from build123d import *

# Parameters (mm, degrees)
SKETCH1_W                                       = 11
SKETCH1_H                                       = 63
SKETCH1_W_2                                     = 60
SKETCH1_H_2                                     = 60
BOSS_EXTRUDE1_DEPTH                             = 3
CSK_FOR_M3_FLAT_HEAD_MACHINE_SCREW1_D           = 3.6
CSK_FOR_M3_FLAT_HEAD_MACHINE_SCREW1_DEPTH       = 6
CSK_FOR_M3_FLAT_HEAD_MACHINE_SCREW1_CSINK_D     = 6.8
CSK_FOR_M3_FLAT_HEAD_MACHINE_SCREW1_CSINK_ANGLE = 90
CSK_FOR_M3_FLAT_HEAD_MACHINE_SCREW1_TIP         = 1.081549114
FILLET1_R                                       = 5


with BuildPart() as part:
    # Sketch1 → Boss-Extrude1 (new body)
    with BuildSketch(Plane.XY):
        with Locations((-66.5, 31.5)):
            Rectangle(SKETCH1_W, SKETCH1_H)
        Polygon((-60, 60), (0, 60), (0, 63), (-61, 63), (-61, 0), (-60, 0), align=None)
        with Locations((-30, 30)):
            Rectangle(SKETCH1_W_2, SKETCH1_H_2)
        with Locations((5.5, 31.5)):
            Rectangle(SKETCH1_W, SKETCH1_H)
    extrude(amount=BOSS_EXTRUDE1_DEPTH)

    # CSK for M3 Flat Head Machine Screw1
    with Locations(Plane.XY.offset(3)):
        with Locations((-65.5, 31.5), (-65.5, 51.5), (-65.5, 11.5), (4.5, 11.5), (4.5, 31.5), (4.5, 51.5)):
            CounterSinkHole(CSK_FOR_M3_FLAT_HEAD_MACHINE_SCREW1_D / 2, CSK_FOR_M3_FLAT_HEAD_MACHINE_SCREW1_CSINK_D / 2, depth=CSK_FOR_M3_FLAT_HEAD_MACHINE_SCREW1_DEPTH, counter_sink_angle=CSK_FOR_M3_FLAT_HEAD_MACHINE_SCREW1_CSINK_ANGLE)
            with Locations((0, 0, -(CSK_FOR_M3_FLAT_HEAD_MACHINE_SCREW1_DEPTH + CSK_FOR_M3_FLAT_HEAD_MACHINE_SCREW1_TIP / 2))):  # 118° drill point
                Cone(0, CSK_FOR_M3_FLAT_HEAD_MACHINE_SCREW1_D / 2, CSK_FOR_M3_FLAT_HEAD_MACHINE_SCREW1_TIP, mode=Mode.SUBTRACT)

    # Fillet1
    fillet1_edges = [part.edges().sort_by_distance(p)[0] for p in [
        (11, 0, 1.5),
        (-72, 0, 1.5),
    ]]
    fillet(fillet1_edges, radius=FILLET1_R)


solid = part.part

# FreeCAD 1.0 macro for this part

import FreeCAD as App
import Part
import Sketcher
from FreeCAD import Vector
Q = App.Units.Quantity


def edges_at(feature, points):
    """Names of the edges that pass closest to the given points."""
    edges = feature.Shape.Edges
    near = lambda p: min(range(len(edges)), key=lambda i: edges[i].distToShape(Part.Vertex(*p))[0])
    return sorted({f"Edge{near(p) + 1}" for p in points})


def add_polygon(sketch, points):
    """Adds a closed chain of lines whose ends are joined by coincident constraints."""
    first, n = sketch.GeometryCount, len(points)
    for a, b in zip(points, points[1:] + points[:1]):
        sketch.addGeometry(Part.LineSegment(App.Vector(*a, 0), App.Vector(*b, 0)), False)
    for i in range(n):
        sketch.addConstraint(Sketcher.Constraint("Coincident", first + i, 2, first + (i + 1) % n, 1))

doc = App.newDocument("Part")
body = doc.addObject("PartDesign::Body", "Body")

# Sketch on XY plane
sketch1 = doc.addObject("Sketcher::SketchObject", "Sketch")
body.addObject(sketch1)
sketch1.AttachmentSupport = (doc.XY_Plane, [""])
sketch1.MapMode = "FlatFace"
add_polygon(sketch1, [(-72, 63), (-72, 0), (11, 0), (11, 63)])  # lines 0-3
sketch1.addConstraint([
    Sketcher.Constraint("Vertical", 0),
    Sketcher.Constraint("Horizontal", 1),
    Sketcher.Constraint("Vertical", 2),
    Sketcher.Constraint("Horizontal", 3),
    Sketcher.Constraint("PointOnObject", 0, 2, -1),
    Sketcher.Constraint("DistanceX", 1, 1, 1, 2, Q("83 mm")),
    Sketcher.Constraint("DistanceY", 0, 2, 0, 1, Q("63 mm")),
    Sketcher.Constraint("DistanceX", 0, 2, -1, 1, Q("72 mm")),
])
pad1 = doc.addObject("PartDesign::Pad", "Pad")
body.addObject(pad1)
pad1.Profile = sketch1
pad1.Length = 3

# Sketch on XY plane
sketch2 = doc.addObject("Sketcher::SketchObject", "Sketch001")
body.addObject(sketch2)
sketch2.AttachmentSupport = (doc.XY_Plane, [""])
sketch2.MapMode = "FlatFace"
sketch2.AttachmentOffset = App.Placement(Vector(0, 0, 3), App.Rotation())
sketch2.addGeometry([
    Part.Circle(Vector(-65.5, 31.5, 0), Vector(0, 0, 1), 1.8),  # 0
    Part.Circle(Vector(-65.5, 51.5, 0), Vector(0, 0, 1), 1.8),  # 1
    Part.Circle(Vector(-65.5, 11.5, 0), Vector(0, 0, 1), 1.8),  # 2
    Part.Circle(Vector(4.5, 11.5, 0), Vector(0, 0, 1), 1.8),  # 3
    Part.Circle(Vector(4.5, 31.5, 0), Vector(0, 0, 1), 1.8),  # 4
    Part.Circle(Vector(4.5, 51.5, 0), Vector(0, 0, 1), 1.8),  # 5
], False)
sketch2.addConstraint([
    Sketcher.Constraint("Equal", 0, 1),
    Sketcher.Constraint("Equal", 1, 2),
    Sketcher.Constraint("Equal", 2, 3),
    Sketcher.Constraint("Equal", 3, 4),
    Sketcher.Constraint("Equal", 4, 5),
    Sketcher.Constraint("Horizontal", 2, 3, 3, 3),
    Sketcher.Constraint("Horizontal", 0, 3, 4, 3),
    Sketcher.Constraint("Horizontal", 1, 3, 5, 3),
    Sketcher.Constraint("Vertical", 0, 3, 1, 3),
    Sketcher.Constraint("Vertical", 1, 3, 2, 3),
    Sketcher.Constraint("Vertical", 3, 3, 4, 3),
    Sketcher.Constraint("Vertical", 4, 3, 5, 3),
    Sketcher.Constraint("Diameter", 0, Q("3.6 mm")),
    Sketcher.Constraint("DistanceY", 0, 3, 1, 3, Q("20 mm")),
    Sketcher.Constraint("DistanceY", 2, 3, 0, 3, Q("20 mm")),
    Sketcher.Constraint("DistanceX", 2, 3, 3, 3, Q("70 mm")),
    Sketcher.Constraint("DistanceX", 0, 3, -1, 1, Q("65.5 mm")),
    Sketcher.Constraint("DistanceY", -1, 1, 0, 3, Q("31.5 mm")),
])
doc.recompute()
hole = doc.addObject("PartDesign::Hole", "Hole")
body.addObject(hole)
hole.Profile = sketch2
hole.ThreadType = "None"
hole.Diameter = 3.6
hole.DepthType = "Dimension"
hole.Depth = 6
hole.DrillPoint = "Angled"
hole.DrillPointAngle = 118
hole.HoleCutType = "Countersink"
hole.HoleCutDiameter = 6.8
hole.HoleCutCountersinkAngle = 90
doc.recompute()

fillet = doc.addObject("PartDesign::Fillet", "Fillet")
body.addObject(fillet)
fillet.Base = (hole, edges_at(hole, [(11, 0, 1.5), (-72, 0, 1.5)]))
fillet.Radius = 5

doc.recompute()
